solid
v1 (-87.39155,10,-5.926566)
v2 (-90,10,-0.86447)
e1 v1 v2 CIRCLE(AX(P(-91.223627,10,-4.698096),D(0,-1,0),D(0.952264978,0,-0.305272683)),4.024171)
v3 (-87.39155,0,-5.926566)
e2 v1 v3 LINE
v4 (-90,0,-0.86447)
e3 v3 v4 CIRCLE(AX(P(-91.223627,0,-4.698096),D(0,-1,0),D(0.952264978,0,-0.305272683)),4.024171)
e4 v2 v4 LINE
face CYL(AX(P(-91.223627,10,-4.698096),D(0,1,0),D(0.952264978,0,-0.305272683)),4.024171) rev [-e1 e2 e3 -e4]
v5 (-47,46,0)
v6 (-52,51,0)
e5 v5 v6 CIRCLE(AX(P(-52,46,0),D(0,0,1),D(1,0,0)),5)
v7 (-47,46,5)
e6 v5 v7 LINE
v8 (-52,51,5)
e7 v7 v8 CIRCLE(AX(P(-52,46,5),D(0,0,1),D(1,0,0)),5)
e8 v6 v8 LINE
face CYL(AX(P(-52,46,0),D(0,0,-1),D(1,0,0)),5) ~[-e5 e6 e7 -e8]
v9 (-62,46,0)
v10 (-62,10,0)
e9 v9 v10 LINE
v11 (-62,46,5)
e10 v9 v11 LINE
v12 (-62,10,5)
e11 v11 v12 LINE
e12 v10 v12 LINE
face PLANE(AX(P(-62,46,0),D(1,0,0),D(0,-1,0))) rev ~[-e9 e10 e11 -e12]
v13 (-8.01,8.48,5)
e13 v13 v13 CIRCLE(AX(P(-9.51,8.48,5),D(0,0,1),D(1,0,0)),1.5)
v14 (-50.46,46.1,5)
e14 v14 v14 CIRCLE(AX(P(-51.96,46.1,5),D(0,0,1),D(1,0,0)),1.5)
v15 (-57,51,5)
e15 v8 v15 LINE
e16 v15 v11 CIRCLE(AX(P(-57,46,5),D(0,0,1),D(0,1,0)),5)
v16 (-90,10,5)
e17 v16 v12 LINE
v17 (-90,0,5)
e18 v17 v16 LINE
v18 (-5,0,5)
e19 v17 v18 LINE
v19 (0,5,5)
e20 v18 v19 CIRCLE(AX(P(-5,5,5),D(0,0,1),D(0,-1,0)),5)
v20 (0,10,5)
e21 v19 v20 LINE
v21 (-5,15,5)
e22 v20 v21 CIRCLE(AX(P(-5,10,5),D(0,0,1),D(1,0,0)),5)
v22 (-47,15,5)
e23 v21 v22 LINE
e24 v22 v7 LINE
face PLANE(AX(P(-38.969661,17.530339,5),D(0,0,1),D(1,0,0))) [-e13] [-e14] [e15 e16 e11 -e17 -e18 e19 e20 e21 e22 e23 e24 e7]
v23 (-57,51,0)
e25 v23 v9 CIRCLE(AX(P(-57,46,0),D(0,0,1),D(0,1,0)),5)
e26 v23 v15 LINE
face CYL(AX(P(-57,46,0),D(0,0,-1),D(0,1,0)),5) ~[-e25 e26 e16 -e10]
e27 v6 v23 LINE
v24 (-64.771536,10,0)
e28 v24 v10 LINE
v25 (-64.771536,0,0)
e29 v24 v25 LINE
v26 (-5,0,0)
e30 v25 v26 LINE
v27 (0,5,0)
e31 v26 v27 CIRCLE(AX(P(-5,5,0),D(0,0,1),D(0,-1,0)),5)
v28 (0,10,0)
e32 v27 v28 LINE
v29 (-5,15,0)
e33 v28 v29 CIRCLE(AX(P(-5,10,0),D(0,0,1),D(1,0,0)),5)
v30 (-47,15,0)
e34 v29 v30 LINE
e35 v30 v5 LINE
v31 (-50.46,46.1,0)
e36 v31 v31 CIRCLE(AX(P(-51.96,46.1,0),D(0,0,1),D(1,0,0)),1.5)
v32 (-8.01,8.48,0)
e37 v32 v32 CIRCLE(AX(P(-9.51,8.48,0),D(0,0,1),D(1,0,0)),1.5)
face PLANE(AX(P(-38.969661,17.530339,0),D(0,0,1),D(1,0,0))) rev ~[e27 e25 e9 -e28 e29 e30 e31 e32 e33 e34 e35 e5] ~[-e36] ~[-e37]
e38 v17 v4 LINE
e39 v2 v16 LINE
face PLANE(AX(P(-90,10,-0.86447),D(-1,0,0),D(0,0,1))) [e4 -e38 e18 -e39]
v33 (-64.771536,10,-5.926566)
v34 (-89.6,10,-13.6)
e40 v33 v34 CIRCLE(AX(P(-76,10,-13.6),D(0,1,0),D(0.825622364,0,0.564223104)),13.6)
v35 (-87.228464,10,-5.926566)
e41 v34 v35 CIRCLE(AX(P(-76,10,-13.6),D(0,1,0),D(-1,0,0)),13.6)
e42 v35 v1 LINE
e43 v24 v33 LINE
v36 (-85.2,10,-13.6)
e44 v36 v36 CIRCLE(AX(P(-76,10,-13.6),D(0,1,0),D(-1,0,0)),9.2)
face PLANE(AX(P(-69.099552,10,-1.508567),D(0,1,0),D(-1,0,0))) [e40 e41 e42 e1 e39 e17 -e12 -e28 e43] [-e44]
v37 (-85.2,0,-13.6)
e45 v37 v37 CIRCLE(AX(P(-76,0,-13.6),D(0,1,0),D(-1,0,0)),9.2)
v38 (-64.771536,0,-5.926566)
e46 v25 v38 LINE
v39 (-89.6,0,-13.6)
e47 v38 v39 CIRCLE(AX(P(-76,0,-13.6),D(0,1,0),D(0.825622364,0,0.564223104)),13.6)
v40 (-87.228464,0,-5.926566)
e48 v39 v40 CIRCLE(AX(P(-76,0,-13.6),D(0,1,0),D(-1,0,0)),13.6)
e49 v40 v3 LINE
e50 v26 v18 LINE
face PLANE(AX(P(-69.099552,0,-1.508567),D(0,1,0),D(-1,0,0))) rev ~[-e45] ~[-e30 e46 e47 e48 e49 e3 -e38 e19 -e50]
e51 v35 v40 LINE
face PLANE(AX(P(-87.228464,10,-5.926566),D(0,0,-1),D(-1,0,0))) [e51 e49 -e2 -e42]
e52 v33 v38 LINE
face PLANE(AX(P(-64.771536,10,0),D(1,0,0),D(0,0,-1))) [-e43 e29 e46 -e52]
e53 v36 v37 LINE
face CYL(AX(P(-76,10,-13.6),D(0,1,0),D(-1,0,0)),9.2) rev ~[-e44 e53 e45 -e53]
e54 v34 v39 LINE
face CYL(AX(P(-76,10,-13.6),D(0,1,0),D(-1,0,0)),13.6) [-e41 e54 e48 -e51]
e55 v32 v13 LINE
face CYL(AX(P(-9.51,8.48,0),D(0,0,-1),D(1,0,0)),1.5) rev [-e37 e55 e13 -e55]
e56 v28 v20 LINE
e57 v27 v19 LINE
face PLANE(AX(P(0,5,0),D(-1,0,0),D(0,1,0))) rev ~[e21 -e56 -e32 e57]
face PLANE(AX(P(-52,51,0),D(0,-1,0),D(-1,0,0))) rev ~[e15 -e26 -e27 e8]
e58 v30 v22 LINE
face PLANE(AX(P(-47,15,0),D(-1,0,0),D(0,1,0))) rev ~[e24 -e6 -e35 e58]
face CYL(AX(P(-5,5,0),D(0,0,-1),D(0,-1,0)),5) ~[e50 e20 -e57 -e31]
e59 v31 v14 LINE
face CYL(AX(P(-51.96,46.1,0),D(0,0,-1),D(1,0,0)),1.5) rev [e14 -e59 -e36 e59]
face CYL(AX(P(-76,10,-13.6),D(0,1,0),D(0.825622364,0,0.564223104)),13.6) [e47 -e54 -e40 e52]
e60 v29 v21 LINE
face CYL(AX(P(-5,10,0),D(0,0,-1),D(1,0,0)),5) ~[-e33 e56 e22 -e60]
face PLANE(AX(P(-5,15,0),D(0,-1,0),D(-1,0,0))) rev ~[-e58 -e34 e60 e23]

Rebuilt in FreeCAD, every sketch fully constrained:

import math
import FreeCAD as App
import Part
import Sketcher

V = App.Vector

doc = App.newDocument("Part")
params = doc.addObject("Spreadsheet::Sheet", "Params")
for row, (alias, value) in enumerate([
    ("sketch1_diameter", "3 mm"),
    ("sketch1_radius", "5 mm"),
    ("sketch1_width", "42 mm"),
    ("sketch1_width2", "5 mm"),
    ("sketch1_width3", "28 mm"),
    ("pad1_length", "5 mm"),
    ("sketch2_diameter", "18.4 mm"),
    ("sketch2_radius", "13.6 mm"),
    ("pad2_length", "10 mm"),
], start=1):
    params.set(f"A{row}", alias)
    params.set(f"B{row}", "=" + value)
    params.setAlias(f"B{row}", alias)

body = doc.addObject("PartDesign::Body", "Body")

sketch1 = body.newObject("Sketcher::SketchObject", "Sketch")
sketch1.AttachmentSupport = (doc.getObject("XY_Plane"), [""])
sketch1.MapMode = "FlatFace"
sketch1.addGeometry(Part.ArcOfCircle(Part.Circle(V(-5, 5, 0), V(0, 0, 1), 5), math.radians(-90), math.radians(0)), False)
sketch1.addGeometry(Part.LineSegment(V(0, 5, 0), V(0, 10, 0)), False)
sketch1.addGeometry(Part.ArcOfCircle(Part.Circle(V(-5, 10, 0), V(0, 0, 1), 5), math.radians(0), math.radians(90)), False)
sketch1.addGeometry(Part.LineSegment(V(-5, 15, 0), V(-47, 15, 0)), False)
sketch1.addGeometry(Part.LineSegment(V(-47, 15, 0), V(-47, 46, 0)), False)
sketch1.addGeometry(Part.ArcOfCircle(Part.Circle(V(-52, 46, 0), V(0, 0, 1), 5), math.radians(0), math.radians(90)), False)
sketch1.addGeometry(Part.LineSegment(V(-52, 51, 0), V(-57, 51, 0)), False)
sketch1.addGeometry(Part.ArcOfCircle(Part.Circle(V(-57, 46, 0), V(0, 0, 1), 5), math.radians(90), math.radians(180)), False)
sketch1.addGeometry(Part.LineSegment(V(-62, 46, 0), V(-62, 10, 0)), False)
sketch1.addGeometry(Part.LineSegment(V(-62, 10, 0), V(-90, 10, 0)), False)
sketch1.addGeometry(Part.LineSegment(V(-90, 10, 0), V(-90, 0, 0)), False)
sketch1.addGeometry(Part.LineSegment(V(-90, 0, 0), V(-5, 0, 0)), False)
sketch1.addGeometry(Part.Circle(V(-9.51, 8.48, 0), V(0, 0, 1), 1.5), False)
sketch1.addGeometry(Part.Circle(V(-51.96, 46.1, 0), V(0, 0, 1), 1.5), False)
sketch1.addConstraint(Sketcher.Constraint("Tangent", 0, 2, 1, 1))
sketch1.addConstraint(Sketcher.Constraint("Tangent", 1, 2, 2, 1))
sketch1.addConstraint(Sketcher.Constraint("Tangent", 2, 2, 3, 1))
sketch1.addConstraint(Sketcher.Constraint("Coincident", 3, 2, 4, 1))
sketch1.addConstraint(Sketcher.Constraint("Tangent", 4, 2, 5, 1))
sketch1.addConstraint(Sketcher.Constraint("Tangent", 5, 2, 6, 1))
sketch1.addConstraint(Sketcher.Constraint("Tangent", 6, 2, 7, 1))
sketch1.addConstraint(Sketcher.Constraint("Tangent", 7, 2, 8, 1))
sketch1.addConstraint(Sketcher.Constraint("Coincident", 8, 2, 9, 1))
sketch1.addConstraint(Sketcher.Constraint("Coincident", 9, 2, 10, 1))
sketch1.addConstraint(Sketcher.Constraint("Coincident", 10, 2, 11, 1))
sketch1.addConstraint(Sketcher.Constraint("Tangent", 11, 2, 0, 1))
sketch1.addConstraint(Sketcher.Constraint("Vertical", 1))
sketch1.addConstraint(Sketcher.Constraint("Horizontal", 3))
sketch1.addConstraint(Sketcher.Constraint("Vertical", 4))
sketch1.addConstraint(Sketcher.Constraint("Horizontal", 6))
sketch1.addConstraint(Sketcher.Constraint("Vertical", 8))
sketch1.addConstraint(Sketcher.Constraint("Horizontal", 9))
sketch1.addConstraint(Sketcher.Constraint("Vertical", 10))
sketch1.addConstraint(Sketcher.Constraint("Horizontal", 11))
sketch1.addConstraint(Sketcher.Constraint("Equal", 0, 2))
sketch1.addConstraint(Sketcher.Constraint("Equal", 2, 5))
sketch1.addConstraint(Sketcher.Constraint("Equal", 5, 7))
sketch1.addConstraint(Sketcher.Constraint("Equal", 12, 13))
sketch1.addConstraint(Sketcher.Constraint("PointOnObject", 0, 2, -2))
sketch1.addConstraint(Sketcher.Constraint("PointOnObject", 10, 2, -1))
sketch1.addConstraint(Sketcher.Constraint("Horizontal", 1, 2, 8, 2))
sketch1.addConstraint(Sketcher.Constraint("Equal", 6, 1))
sketch1.addConstraint(Sketcher.Constraint("Diameter", 12, 3.0))
sketch1.addConstraint(Sketcher.Constraint("Radius", 0, 5.0))
sketch1.addConstraint(Sketcher.Constraint("DistanceX", 3, 2, 3, 1, 42.0))
sketch1.addConstraint(Sketcher.Constraint("DistanceX", 6, 2, 6, 1, 5.0))
sketch1.addConstraint(Sketcher.Constraint("DistanceX", 9, 2, 9, 1, 28.0))
sketch1.addConstraint(Sketcher.Constraint("DistanceY", 4, 1, 4, 2, 31.0))
sketch1.addConstraint(Sketcher.Constraint("DistanceY", -1, 1, 13, 3, 46.1))
sketch1.addConstraint(Sketcher.Constraint("DistanceX", 12, 3, -1, 1, 9.51))
sketch1.addConstraint(Sketcher.Constraint("DistanceY", -1, 1, 12, 3, 8.48))
sketch1.addConstraint(Sketcher.Constraint("DistanceX", 13, 3, -1, 1, 51.96))
sketch1.setExpression("Constraints[28]", "Params.sketch1_diameter")
sketch1.setExpression("Constraints[29]", "Params.sketch1_radius")
sketch1.setExpression("Constraints[30]", "Params.sketch1_width")
sketch1.setExpression("Constraints[31]", "Params.sketch1_width2")
sketch1.setExpression("Constraints[32]", "Params.sketch1_width3")
pad1 = body.newObject("PartDesign::Pad", "Pad")
pad1.Profile = sketch1
pad1.setExpression("Length", "Params.pad1_length")

sketch2 = body.newObject("Sketcher::SketchObject", "Sketch001")
sketch2.AttachmentSupport = (doc.getObject("XZ_Plane"), [""])
sketch2.MapMode = "FlatFace"
sketch2.AttachmentOffset = App.Placement(V(0, 0, -10), App.Rotation())
sketch2.addGeometry(Part.LineSegment(V(-64.771536, 0, 0), V(-64.771536, -5.926566, 0)), False)
sketch2.addGeometry(Part.ArcOfCircle(Part.Circle(V(-76, -13.6, 0), V(0, 0, 1), 13.6), math.radians(180), math.radians(394.34836)), False)
sketch2.addGeometry(Part.ArcOfCircle(Part.Circle(V(-76, -13.6, 0), V(0, 0, 1), 13.6), math.radians(145.65164), math.radians(180)), False)
sketch2.addGeometry(Part.LineSegment(V(-87.228464, -5.926566, 0), V(-87.39155, -5.926566, 0)), False)
sketch2.addGeometry(Part.ArcOfCircle(Part.Circle(V(-91.223627, -4.698096, 0), V(0, 0, 1), 4.024171), math.radians(-17.77457), math.radians(72.297813)), False)
sketch2.addGeometry(Part.LineSegment(V(-90, -0.86447, 0), V(-90, 0, 0)), False)
sketch2.addGeometry(Part.LineSegment(V(-90, 0, 0), V(-64.771536, 0, 0)), False)
sketch2.addGeometry(Part.Circle(V(-76, -13.6, 0), V(0, 0, 1), 9.2), False)
sketch2.addConstraint(Sketcher.Constraint("Coincident", 0, 2, 1, 2))
sketch2.addConstraint(Sketcher.Constraint("Tangent", 1, 1, 2, 2))
sketch2.addConstraint(Sketcher.Constraint("Coincident", 2, 1, 3, 1))
sketch2.addConstraint(Sketcher.Constraint("Coincident", 3, 2, 4, 1))
sketch2.addConstraint(Sketcher.Constraint("Coincident", 4, 2, 5, 1))
sketch2.addConstraint(Sketcher.Constraint("Coincident", 5, 2, 6, 1))
sketch2.addConstraint(Sketcher.Constraint("Coincident", 6, 2, 0, 1))
sketch2.addConstraint(Sketcher.Constraint("Vertical", 0))
sketch2.addConstraint(Sketcher.Constraint("Horizontal", 3))
sketch2.addConstraint(Sketcher.Constraint("Vertical", 5))
sketch2.addConstraint(Sketcher.Constraint("Horizontal", 6))
sketch2.addConstraint(Sketcher.Constraint("Coincident", 7, 3, 1, 3))
sketch2.addConstraint(Sketcher.Constraint("Equal", 1, 2))
sketch2.addConstraint(Sketcher.Constraint("PointOnObject", 5, 2, -1))
sketch2.addConstraint(Sketcher.Constraint("Horizontal", 7, 3, 1, 1))
sketch2.addConstraint(Sketcher.Constraint("Horizontal", 0, 2, 2, 1))
sketch2.addConstraint(Sketcher.Constraint("Diameter", 7, 18.4))
sketch2.addConstraint(Sketcher.Constraint("Radius", 1, 13.6))
sketch2.addConstraint(Sketcher.Constraint("DistanceX", 1, 3, -1, 1, 76.0))
sketch2.addConstraint(Sketcher.Constraint("DistanceX", 4, 2, -1, 1, 90.0))
sketch2.addConstraint(Sketcher.Constraint("DistanceY", 1, 3, -1, 1, 13.6))
sketch2.addConstraint(Sketcher.Constraint("Radius", 4, 4.024171))
sketch2.addConstraint(Sketcher.Constraint("DistanceY", 5, 1, 5, 2, 0.86447))
sketch2.addConstraint(Sketcher.Constraint("DistanceX", 3, 2, 3, 1, 0.163086))
sketch2.addConstraint(Sketcher.Constraint("DistanceX", 6, 1, 6, 2, 25.228464))
sketch2.setExpression("Constraints[16]", "Params.sketch2_diameter")
sketch2.setExpression("Constraints[17]", "Params.sketch2_radius")
pad2 = body.newObject("PartDesign::Pad", "Pad001")
pad2.Profile = sketch2
pad2.setExpression("Length", "Params.pad2_length")

doc.recompute()
